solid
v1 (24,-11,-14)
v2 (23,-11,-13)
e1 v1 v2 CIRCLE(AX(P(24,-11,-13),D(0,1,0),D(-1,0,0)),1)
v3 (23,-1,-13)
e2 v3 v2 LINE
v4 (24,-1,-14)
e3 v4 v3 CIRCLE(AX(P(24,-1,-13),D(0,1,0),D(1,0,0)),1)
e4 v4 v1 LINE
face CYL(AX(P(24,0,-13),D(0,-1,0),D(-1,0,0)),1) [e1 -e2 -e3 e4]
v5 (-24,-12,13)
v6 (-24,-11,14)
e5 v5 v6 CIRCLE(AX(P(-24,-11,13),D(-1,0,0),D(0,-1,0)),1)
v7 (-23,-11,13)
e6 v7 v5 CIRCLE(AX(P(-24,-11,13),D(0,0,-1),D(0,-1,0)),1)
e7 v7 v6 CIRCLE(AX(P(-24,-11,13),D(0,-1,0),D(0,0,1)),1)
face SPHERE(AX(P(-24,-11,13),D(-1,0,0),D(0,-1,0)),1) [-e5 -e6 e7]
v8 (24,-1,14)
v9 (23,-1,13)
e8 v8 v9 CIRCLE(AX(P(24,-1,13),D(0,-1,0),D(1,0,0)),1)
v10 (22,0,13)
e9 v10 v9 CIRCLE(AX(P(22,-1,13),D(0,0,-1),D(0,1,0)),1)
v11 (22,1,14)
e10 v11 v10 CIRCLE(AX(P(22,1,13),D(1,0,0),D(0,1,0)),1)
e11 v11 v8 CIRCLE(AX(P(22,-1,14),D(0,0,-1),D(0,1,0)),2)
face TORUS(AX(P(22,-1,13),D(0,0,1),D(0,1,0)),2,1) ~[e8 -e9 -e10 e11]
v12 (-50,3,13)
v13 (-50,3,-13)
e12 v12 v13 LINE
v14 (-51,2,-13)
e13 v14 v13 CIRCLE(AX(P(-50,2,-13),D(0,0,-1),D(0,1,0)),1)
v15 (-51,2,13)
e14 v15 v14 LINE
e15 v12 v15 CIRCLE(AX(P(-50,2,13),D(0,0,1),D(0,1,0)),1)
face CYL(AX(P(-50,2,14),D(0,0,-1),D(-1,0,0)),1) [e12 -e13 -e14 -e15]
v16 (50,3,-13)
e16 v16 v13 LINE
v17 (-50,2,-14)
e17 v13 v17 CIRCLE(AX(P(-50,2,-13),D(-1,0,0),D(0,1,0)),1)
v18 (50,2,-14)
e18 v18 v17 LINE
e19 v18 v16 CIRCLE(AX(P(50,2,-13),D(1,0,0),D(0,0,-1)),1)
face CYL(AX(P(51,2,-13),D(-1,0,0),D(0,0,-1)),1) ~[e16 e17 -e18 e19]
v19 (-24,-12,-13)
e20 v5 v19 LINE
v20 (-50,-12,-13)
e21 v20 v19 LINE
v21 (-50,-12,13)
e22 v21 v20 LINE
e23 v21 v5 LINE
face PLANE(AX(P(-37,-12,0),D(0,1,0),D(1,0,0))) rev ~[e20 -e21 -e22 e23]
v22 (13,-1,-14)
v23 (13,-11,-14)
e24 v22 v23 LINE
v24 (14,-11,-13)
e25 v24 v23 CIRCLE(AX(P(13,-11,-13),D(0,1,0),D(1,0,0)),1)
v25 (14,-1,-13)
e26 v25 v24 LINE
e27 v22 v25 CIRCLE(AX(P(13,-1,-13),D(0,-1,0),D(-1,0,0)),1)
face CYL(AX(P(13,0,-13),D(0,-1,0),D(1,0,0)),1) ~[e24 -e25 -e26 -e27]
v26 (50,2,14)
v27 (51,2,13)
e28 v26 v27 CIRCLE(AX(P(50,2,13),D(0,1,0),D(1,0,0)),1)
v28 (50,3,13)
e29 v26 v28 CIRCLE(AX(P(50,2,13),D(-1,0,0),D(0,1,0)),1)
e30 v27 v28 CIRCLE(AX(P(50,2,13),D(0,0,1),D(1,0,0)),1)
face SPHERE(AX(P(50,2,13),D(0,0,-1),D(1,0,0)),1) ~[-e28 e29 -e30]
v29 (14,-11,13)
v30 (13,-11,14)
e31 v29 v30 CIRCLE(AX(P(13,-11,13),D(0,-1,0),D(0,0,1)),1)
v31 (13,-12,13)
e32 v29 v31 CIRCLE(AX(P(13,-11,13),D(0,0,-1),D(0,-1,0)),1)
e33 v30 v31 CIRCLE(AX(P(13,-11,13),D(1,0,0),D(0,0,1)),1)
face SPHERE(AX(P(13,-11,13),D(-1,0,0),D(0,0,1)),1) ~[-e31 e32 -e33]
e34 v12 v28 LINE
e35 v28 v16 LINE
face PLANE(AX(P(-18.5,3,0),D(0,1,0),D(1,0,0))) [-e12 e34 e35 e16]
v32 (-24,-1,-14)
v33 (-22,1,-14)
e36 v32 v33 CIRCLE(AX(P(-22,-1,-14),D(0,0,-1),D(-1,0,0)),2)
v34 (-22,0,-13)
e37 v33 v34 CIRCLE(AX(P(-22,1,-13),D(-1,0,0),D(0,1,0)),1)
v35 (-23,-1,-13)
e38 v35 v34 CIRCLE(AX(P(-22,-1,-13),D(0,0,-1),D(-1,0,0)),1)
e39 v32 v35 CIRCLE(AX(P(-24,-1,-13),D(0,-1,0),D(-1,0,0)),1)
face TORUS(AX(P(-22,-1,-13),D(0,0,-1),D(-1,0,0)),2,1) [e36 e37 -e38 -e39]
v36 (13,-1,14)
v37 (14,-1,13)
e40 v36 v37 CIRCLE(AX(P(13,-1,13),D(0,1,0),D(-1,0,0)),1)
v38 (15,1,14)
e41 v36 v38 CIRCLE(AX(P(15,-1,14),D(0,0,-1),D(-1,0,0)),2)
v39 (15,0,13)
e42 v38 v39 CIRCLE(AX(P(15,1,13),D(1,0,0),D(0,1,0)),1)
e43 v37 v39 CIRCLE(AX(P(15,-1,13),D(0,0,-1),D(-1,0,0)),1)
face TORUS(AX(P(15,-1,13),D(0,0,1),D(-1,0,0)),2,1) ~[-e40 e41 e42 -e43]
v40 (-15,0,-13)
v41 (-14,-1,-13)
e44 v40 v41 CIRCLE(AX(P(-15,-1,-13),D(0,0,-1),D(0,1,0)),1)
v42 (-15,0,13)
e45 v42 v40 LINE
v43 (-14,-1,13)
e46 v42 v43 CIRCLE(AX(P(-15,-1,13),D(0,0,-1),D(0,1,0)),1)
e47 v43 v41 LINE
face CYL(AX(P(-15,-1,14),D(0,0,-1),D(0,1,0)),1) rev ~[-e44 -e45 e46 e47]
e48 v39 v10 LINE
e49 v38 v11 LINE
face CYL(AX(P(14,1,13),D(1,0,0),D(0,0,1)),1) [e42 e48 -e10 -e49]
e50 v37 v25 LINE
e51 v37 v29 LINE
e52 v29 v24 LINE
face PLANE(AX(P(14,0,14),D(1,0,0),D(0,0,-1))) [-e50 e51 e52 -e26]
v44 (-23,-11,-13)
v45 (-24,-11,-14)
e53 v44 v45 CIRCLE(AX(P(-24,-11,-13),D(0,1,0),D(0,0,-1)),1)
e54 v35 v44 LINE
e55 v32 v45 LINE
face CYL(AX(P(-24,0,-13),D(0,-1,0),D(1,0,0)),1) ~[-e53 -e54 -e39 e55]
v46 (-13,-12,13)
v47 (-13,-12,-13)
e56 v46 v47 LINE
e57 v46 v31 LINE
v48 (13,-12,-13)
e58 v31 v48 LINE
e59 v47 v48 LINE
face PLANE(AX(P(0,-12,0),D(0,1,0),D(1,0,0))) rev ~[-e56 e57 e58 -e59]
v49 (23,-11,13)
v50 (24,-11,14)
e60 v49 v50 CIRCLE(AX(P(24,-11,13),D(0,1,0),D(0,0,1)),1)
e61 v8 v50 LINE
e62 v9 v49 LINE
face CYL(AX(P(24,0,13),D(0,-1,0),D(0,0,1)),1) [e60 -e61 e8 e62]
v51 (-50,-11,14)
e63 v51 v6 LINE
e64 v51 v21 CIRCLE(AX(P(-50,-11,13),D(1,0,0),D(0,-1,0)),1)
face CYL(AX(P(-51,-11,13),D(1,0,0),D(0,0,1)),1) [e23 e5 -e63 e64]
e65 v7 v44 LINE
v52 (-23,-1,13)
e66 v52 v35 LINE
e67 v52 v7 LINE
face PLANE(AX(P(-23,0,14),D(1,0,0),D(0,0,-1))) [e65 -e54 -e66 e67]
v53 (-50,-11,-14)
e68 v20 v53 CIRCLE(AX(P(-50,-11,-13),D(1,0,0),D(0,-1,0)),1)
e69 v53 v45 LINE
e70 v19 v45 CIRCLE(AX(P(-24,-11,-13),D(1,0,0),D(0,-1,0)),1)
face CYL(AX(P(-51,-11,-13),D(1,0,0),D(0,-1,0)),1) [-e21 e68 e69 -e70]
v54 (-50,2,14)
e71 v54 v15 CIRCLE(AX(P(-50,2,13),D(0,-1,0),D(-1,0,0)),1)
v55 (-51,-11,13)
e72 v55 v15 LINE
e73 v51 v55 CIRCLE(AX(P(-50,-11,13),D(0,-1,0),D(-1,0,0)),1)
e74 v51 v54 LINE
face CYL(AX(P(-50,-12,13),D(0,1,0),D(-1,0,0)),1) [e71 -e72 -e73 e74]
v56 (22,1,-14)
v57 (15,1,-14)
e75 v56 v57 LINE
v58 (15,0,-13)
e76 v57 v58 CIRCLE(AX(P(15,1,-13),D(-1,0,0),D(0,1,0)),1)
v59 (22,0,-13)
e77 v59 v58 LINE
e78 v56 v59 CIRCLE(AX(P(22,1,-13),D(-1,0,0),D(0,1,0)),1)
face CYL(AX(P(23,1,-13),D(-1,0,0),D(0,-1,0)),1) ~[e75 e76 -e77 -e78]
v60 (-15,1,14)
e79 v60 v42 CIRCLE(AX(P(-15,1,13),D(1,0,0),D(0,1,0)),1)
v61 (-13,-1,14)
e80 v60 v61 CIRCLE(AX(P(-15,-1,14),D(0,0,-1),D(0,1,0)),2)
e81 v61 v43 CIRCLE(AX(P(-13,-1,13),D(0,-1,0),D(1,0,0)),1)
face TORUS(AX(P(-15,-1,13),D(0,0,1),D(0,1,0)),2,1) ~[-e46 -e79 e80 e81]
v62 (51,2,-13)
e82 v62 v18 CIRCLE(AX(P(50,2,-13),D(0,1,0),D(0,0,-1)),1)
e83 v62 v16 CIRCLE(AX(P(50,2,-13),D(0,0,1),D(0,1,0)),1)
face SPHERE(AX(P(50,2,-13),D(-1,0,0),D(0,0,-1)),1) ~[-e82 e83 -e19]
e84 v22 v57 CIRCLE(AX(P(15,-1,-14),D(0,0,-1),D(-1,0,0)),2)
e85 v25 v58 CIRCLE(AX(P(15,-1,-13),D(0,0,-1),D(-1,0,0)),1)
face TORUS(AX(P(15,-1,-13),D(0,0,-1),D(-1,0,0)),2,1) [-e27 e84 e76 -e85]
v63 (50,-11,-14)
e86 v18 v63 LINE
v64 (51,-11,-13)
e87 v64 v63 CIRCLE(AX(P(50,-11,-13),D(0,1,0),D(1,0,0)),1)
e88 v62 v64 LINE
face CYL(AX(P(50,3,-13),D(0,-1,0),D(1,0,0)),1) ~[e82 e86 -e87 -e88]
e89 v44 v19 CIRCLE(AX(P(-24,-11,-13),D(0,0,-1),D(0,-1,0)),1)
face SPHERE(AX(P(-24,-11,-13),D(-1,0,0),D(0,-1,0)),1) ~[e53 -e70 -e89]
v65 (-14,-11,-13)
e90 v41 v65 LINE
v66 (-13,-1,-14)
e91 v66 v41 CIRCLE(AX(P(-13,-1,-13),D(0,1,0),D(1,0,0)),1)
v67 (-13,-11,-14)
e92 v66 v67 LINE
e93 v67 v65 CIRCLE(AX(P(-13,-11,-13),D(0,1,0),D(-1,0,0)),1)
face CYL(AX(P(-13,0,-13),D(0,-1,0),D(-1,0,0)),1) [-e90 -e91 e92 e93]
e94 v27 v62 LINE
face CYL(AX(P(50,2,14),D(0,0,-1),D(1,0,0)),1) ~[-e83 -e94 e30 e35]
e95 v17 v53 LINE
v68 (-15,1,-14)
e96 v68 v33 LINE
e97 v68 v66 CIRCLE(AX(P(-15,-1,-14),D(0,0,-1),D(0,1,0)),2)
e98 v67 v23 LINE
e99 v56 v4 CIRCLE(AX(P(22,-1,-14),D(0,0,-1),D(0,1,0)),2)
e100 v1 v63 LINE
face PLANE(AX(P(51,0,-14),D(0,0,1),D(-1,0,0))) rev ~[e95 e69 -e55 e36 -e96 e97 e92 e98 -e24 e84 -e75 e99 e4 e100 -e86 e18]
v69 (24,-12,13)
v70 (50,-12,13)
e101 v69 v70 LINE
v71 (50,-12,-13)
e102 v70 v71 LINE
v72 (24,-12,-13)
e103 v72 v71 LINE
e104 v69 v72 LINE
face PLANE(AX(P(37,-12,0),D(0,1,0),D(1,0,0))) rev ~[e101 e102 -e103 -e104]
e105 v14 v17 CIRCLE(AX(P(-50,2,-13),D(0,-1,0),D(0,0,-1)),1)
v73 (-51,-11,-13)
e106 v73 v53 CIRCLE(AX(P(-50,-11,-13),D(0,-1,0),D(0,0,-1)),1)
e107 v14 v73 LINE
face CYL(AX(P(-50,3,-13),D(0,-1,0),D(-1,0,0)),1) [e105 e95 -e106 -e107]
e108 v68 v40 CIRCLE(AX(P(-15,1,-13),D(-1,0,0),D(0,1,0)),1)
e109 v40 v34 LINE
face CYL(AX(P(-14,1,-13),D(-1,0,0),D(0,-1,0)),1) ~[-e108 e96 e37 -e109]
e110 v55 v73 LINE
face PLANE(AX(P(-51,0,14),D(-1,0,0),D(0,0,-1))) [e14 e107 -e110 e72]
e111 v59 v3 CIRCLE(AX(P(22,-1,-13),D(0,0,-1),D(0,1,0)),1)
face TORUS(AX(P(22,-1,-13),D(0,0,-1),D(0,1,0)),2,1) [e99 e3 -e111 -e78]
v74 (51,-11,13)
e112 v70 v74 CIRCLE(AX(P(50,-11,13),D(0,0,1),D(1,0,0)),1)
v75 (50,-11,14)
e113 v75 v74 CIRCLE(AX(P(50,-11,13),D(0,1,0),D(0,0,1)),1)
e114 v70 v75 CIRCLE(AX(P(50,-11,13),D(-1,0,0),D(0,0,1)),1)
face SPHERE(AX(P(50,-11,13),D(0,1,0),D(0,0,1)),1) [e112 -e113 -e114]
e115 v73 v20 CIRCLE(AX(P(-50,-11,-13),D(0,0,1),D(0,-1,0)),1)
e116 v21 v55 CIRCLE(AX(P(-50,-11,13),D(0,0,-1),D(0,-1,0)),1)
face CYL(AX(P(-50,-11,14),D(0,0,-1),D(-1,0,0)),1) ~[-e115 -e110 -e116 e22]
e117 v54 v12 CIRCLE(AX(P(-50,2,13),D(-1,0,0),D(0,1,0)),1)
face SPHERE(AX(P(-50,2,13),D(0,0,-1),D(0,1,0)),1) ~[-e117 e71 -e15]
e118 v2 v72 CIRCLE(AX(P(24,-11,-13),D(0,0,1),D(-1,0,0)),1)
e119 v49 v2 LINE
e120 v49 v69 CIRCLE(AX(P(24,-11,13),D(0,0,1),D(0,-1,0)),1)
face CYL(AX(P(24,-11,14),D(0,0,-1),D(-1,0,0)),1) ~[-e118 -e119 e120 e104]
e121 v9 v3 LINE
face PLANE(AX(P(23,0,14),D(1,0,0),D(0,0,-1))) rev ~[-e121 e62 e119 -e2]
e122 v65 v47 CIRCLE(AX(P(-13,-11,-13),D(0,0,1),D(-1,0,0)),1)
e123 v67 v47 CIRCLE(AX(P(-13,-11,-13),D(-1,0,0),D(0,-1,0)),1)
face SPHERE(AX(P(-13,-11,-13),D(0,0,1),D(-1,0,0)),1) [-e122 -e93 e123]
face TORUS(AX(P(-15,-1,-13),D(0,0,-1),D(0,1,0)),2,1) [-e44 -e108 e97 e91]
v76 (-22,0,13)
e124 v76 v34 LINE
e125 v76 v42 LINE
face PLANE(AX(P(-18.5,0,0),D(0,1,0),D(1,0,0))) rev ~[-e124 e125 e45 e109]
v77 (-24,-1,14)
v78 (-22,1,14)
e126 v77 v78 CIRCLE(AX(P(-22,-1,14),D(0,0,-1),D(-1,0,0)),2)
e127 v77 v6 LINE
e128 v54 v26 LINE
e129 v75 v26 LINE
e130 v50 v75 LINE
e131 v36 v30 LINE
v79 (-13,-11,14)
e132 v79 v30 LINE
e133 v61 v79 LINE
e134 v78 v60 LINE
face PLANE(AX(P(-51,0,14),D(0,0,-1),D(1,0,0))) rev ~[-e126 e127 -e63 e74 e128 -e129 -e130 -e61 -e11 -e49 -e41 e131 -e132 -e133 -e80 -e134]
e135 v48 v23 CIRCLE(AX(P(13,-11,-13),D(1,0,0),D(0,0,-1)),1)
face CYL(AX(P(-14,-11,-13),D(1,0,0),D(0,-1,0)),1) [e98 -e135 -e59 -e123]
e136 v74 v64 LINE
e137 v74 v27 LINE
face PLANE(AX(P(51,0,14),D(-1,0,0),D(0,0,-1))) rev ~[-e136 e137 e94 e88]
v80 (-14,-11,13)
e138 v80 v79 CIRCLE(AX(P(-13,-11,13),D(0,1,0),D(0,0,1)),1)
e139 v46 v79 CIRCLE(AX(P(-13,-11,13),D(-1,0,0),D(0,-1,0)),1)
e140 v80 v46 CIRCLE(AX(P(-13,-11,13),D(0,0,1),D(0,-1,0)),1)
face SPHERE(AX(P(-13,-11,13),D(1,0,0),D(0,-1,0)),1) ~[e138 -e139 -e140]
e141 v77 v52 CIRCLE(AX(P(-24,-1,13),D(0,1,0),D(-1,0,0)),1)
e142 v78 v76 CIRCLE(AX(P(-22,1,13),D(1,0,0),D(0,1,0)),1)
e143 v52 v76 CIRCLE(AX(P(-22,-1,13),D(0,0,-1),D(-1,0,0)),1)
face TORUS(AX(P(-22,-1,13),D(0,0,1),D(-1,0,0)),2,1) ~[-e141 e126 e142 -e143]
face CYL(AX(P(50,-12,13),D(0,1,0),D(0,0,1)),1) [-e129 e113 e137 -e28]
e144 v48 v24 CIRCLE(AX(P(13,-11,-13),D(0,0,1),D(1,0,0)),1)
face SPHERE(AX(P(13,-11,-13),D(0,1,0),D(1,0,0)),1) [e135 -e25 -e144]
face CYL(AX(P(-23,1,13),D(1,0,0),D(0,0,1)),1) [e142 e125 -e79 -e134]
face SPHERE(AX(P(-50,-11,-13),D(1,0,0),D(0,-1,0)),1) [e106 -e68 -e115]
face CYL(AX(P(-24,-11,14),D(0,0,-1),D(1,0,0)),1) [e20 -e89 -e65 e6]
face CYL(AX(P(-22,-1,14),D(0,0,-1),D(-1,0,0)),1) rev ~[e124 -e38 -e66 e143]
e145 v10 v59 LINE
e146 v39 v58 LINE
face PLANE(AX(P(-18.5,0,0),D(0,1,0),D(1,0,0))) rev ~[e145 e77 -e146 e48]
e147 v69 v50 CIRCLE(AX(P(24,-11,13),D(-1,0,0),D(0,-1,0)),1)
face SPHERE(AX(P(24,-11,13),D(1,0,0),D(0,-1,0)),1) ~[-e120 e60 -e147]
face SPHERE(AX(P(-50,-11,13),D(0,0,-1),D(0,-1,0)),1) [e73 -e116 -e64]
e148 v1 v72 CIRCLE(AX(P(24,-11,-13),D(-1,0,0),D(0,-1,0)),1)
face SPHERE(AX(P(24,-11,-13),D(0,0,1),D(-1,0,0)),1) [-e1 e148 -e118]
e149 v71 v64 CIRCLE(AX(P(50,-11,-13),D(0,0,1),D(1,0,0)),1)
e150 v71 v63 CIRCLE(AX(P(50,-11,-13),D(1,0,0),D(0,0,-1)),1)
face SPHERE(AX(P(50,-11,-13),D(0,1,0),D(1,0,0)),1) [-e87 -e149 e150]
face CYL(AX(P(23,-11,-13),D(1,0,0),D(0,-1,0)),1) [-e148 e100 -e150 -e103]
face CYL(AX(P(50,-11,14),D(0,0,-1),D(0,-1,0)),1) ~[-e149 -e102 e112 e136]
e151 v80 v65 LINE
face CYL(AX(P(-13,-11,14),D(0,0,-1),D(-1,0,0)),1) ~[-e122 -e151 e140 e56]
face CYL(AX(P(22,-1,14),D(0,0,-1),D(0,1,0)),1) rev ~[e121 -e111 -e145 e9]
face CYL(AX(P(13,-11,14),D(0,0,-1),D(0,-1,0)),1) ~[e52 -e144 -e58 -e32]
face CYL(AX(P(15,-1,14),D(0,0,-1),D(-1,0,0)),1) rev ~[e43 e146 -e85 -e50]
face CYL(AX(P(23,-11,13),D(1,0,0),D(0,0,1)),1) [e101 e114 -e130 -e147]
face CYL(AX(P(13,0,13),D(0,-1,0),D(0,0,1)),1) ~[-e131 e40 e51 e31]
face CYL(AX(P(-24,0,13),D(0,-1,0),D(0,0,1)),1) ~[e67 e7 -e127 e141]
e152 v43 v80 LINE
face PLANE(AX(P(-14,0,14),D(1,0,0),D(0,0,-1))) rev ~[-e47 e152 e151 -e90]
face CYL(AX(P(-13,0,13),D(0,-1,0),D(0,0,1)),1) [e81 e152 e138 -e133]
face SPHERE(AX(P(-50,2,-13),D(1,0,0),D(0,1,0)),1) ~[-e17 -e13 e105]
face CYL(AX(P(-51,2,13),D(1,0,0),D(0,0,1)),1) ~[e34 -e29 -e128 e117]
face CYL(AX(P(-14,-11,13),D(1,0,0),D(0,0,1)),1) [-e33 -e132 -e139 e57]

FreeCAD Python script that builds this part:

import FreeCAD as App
import Part
import Sketcher
from FreeCAD import Vector


def add_polygon(sketch, points):
    """Adds a closed chain of lines whose ends are joined by coincident constraints."""
    first, n = sketch.GeometryCount, len(points)
    for a, b in zip(points, points[1:] + points[:1]):
        sketch.addGeometry(Part.LineSegment(App.Vector(*a, 0), App.Vector(*b, 0)), False)
    for i in range(n):
        sketch.addConstraint(Sketcher.Constraint("Coincident", first + i, 2, first + (i + 1) % n, 1))

doc = App.newDocument("Part")
params = doc.addObject("Spreadsheet::Sheet", "Params")
for row, (alias, value) in enumerate([
    ("sketch1_width", "28 mm"),
    ("pad1_length", "12 mm"),
    ("sketch2_width", "28 mm"),
    ("pad2_length", "12 mm"),
    ("sketch3_width", "28 mm"),
    ("pad3_length", "12 mm"),
    ("sketch4_width", "102 mm"),
    ("sketch4_height", "28 mm"),
    ("pad4_length", "3 mm"),
    ("fillet_radius", "1 mm"),
], start=1):
    params.set(f"A{row}", alias)
    params.set(f"B{row}", "=" + value)
    params.setAlias(f"B{row}", alias)

body = doc.addObject("PartDesign::Body", "Body")

# Sketch on XZ plane
sketch1 = body.newObject("Sketcher::SketchObject", "Sketch")
sketch1.AttachmentSupport = (doc.getObject("XZ_Plane"), [""])
sketch1.MapMode = "FlatFace"
add_polygon(sketch1, [(-51, -14), (-51, 14), (-23, 14), (-23, -14)])  # lines 0-3
sketch1.addConstraint(Sketcher.Constraint("Vertical", 0))
sketch1.addConstraint(Sketcher.Constraint("Horizontal", 1))
sketch1.addConstraint(Sketcher.Constraint("Vertical", 2))
sketch1.addConstraint(Sketcher.Constraint("Horizontal", 3))
sketch1.addConstraint(Sketcher.Constraint("Equal", 3, 0))
sketch1.addConstraint(Sketcher.Constraint("DistanceX", 1, 1, 1, 2, 28.0))
sketch1.addConstraint(Sketcher.Constraint("DistanceX", 0, 2, -1, 1, 51.0))
sketch1.addConstraint(Sketcher.Constraint("DistanceY", -1, 1, 0, 2, 14.0))
sketch1.setExpression("Constraints[9]", "Params.sketch1_width")
pad1 = body.newObject("PartDesign::Pad", "Pad")
pad1.Profile = sketch1
pad1.setExpression("Length", "Params.pad1_length")
body2 = doc.addObject("PartDesign::Body", "Body001")

# Sketch on XZ plane
sketch2 = body2.newObject("Sketcher::SketchObject", "Sketch001")
sketch2.AttachmentSupport = (doc.getObject("XZ_Plane001"), [""])
sketch2.MapMode = "FlatFace"
add_polygon(sketch2, [(-14, -14), (-14, 14), (14, 14), (14, -14)])  # lines 0-3
sketch2.addConstraint(Sketcher.Constraint("Vertical", 0))
sketch2.addConstraint(Sketcher.Constraint("Horizontal", 1))
sketch2.addConstraint(Sketcher.Constraint("Vertical", 2))
sketch2.addConstraint(Sketcher.Constraint("Horizontal", 3))
sketch2.addConstraint(Sketcher.Constraint("Symmetric", 0, 2, 2, 2, -1, 1))
sketch2.addConstraint(Sketcher.Constraint("Equal", 3, 0))
sketch2.addConstraint(Sketcher.Constraint("DistanceX", 1, 1, 1, 2, 28.0))
sketch2.setExpression("Constraints[10]", "Params.sketch2_width")
pad2 = body2.newObject("PartDesign::Pad", "Pad001")
pad2.Profile = sketch2
pad2.setExpression("Length", "Params.pad2_length")
body3 = doc.addObject("PartDesign::Body", "Body002")

# Sketch on XZ plane
sketch3 = body3.newObject("Sketcher::SketchObject", "Sketch002")
sketch3.AttachmentSupport = (doc.getObject("XZ_Plane002"), [""])
sketch3.MapMode = "FlatFace"
add_polygon(sketch3, [(23, -14), (23, 14), (51, 14), (51, -14)])  # lines 0-3
sketch3.addConstraint(Sketcher.Constraint("Vertical", 0))
sketch3.addConstraint(Sketcher.Constraint("Horizontal", 1))
sketch3.addConstraint(Sketcher.Constraint("Vertical", 2))
sketch3.addConstraint(Sketcher.Constraint("Horizontal", 3))
sketch3.addConstraint(Sketcher.Constraint("Equal", 3, 0))
sketch3.addConstraint(Sketcher.Constraint("DistanceX", 1, 1, 1, 2, 28.0))
sketch3.addConstraint(Sketcher.Constraint("DistanceX", -1, 1, 0, 2, 23.0))
sketch3.addConstraint(Sketcher.Constraint("DistanceY", -1, 1, 0, 2, 14.0))
sketch3.setExpression("Constraints[9]", "Params.sketch3_width")
pad3 = body3.newObject("PartDesign::Pad", "Pad002")
pad3.Profile = sketch3
pad3.setExpression("Length", "Params.pad3_length")
body.AllowCompound = True
doc.recompute()

boolean = body.newObject("PartDesign::Boolean", "Boolean")
boolean.Type = "Fuse"
boolean.addObjects([body2])
doc.recompute()

boolean2 = body.newObject("PartDesign::Boolean", "Boolean001")
boolean2.Type = "Fuse"
boolean2.addObjects([body3])

# Sketch on XZ plane
sketch4 = body.newObject("Sketcher::SketchObject", "Sketch003")
sketch4.AttachmentSupport = (doc.getObject("XZ_Plane"), [""])
sketch4.MapMode = "FlatFace"
add_polygon(sketch4, [(-51, -14), (-51, 14), (51, 14), (51, -14)])  # lines 0-3
sketch4.addConstraint(Sketcher.Constraint("Vertical", 0))
sketch4.addConstraint(Sketcher.Constraint("Horizontal", 1))
sketch4.addConstraint(Sketcher.Constraint("Vertical", 2))
sketch4.addConstraint(Sketcher.Constraint("Horizontal", 3))
sketch4.addConstraint(Sketcher.Constraint("Symmetric", 0, 2, 2, 2, -1, 1))
sketch4.addConstraint(Sketcher.Constraint("DistanceX", 1, 1, 1, 2, 102.0))
sketch4.addConstraint(Sketcher.Constraint("DistanceY", 0, 1, 0, 2, 28.0))
sketch4.setExpression("Constraints[9]", "Params.sketch4_width")
sketch4.setExpression("Constraints[10]", "Params.sketch4_height")
pad4 = body.newObject("PartDesign::Pad", "Pad003")
pad4.Profile = sketch4
pad4.setExpression("Length", "Params.pad4_length")
pad4.Reversed = True
doc.recompute()

fillet = body.newObject("PartDesign::Fillet", "Fillet")
fillet.Base = (pad4, ["Edge1"])
fillet.UseAllEdges = True
fillet.setExpression("Radius", "Params.fillet_radius")

doc.recompute()
